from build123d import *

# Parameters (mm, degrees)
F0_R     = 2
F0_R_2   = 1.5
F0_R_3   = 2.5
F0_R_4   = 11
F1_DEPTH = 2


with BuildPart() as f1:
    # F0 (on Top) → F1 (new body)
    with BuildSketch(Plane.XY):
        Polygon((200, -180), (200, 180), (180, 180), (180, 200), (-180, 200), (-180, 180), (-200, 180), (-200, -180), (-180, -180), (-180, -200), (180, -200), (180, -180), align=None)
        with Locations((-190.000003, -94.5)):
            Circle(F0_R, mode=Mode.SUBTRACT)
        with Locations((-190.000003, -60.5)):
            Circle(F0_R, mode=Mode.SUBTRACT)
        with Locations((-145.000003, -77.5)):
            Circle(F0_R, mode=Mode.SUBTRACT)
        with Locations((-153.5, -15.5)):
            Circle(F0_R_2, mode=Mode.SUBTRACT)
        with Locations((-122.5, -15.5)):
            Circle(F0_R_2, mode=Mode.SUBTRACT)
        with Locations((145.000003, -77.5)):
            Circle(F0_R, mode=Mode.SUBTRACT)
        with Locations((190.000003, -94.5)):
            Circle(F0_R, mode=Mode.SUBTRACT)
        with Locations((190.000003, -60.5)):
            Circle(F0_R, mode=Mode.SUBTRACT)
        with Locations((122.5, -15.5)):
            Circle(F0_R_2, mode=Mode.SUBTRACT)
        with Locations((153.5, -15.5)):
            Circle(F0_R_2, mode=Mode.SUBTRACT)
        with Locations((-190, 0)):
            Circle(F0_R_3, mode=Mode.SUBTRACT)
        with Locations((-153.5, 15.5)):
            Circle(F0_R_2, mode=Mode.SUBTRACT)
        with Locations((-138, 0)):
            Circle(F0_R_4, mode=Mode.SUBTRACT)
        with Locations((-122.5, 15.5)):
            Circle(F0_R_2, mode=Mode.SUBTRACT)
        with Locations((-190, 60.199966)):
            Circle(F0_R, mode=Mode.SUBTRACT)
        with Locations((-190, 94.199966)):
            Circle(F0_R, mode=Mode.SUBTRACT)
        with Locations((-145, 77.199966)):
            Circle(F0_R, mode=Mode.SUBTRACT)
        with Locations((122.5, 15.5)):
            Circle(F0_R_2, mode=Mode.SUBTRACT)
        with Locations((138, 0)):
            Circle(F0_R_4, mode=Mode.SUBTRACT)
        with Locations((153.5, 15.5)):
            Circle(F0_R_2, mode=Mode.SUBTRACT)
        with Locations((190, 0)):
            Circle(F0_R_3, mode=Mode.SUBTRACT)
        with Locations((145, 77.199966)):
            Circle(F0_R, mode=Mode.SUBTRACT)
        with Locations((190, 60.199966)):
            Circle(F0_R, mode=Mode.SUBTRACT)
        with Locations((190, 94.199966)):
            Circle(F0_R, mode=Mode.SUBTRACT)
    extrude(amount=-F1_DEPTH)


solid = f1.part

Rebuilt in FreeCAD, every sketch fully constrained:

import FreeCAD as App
import Part
import Sketcher

V = App.Vector

doc = App.newDocument("Part")
body = doc.addObject("PartDesign::Body", "Body")

sketch1 = body.newObject("Sketcher::SketchObject", "Sketch")
sketch1.AttachmentSupport = (doc.getObject("XY_Plane"), [""])
sketch1.MapMode = "FlatFace"
sketch1.addGeometry([
    Part.LineSegment(V(200, -180, 0), V(200, 180, 0)),
    Part.LineSegment(V(200, 180, 0), V(180, 180, 0)),
    Part.LineSegment(V(180, 180, 0), V(180, 200, 0)),
    Part.LineSegment(V(180, 200, 0), V(-180, 200, 0)),
    Part.LineSegment(V(-180, 200, 0), V(-180, 180, 0)),
    Part.LineSegment(V(-180, 180, 0), V(-200, 180, 0)),
    Part.LineSegment(V(-200, 180, 0), V(-200, -180, 0)),
    Part.LineSegment(V(-200, -180, 0), V(-180, -180, 0)),
    Part.LineSegment(V(-180, -180, 0), V(-180, -200, 0)),
    Part.LineSegment(V(-180, -200, 0), V(180, -200, 0)),
    Part.LineSegment(V(180, -200, 0), V(180, -180, 0)),
    Part.LineSegment(V(180, -180, 0), V(200, -180, 0)),
    Part.Circle(V(-190.000003, -94.5, 0), V(0, 0, 1), 2),
    Part.Circle(V(-145.000003, -77.5, 0), V(0, 0, 1), 2),
    Part.Circle(V(-190.000003, -60.5, 0), V(0, 0, 1), 2),
    Part.Circle(V(-153.5, -15.5, 0), V(0, 0, 1), 1.5),
    Part.Circle(V(-122.5, -15.5, 0), V(0, 0, 1), 1.5),
    Part.Circle(V(190.000003, -94.5, 0), V(0, 0, 1), 2),
    Part.Circle(V(145.000003, -77.5, 0), V(0, 0, 1), 2),
    Part.Circle(V(190.000003, -60.5, 0), V(0, 0, 1), 2),
    Part.Circle(V(122.5, -15.5, 0), V(0, 0, 1), 1.5),
    Part.Circle(V(153.5, -15.5, 0), V(0, 0, 1), 1.5),
    Part.Circle(V(-190, 0, 0), V(0, 0, 1), 2.5),
    Part.Circle(V(-153.5, 15.5, 0), V(0, 0, 1), 1.5),
    Part.Circle(V(-138, 0, 0), V(0, 0, 1), 11),
    Part.Circle(V(-122.5, 15.5, 0), V(0, 0, 1), 1.5),
    Part.Circle(V(-190, 60.199966, 0), V(0, 0, 1), 2),
    Part.Circle(V(-145, 77.199966, 0), V(0, 0, 1), 2),
    Part.Circle(V(-190, 94.199966, 0), V(0, 0, 1), 2),
    Part.Circle(V(138, 0, 0), V(0, 0, 1), 11),
    Part.Circle(V(122.5, 15.5, 0), V(0, 0, 1), 1.5),
    Part.Circle(V(190, 0, 0), V(0, 0, 1), 2.5),
    Part.Circle(V(153.5, 15.5, 0), V(0, 0, 1), 1.5),
    Part.Circle(V(190, 60.199966, 0), V(0, 0, 1), 2),
    Part.Circle(V(145, 77.199966, 0), V(0, 0, 1), 2),
    Part.Circle(V(190, 94.199966, 0), V(0, 0, 1), 2),
], False)
sketch1.addConstraint([
    Sketcher.Constraint("Coincident", 0, 2, 1, 1),
    Sketcher.Constraint("Coincident", 1, 2, 2, 1),
    Sketcher.Constraint("Coincident", 2, 2, 3, 1),
    Sketcher.Constraint("Coincident", 3, 2, 4, 1),
    Sketcher.Constraint("Coincident", 4, 2, 5, 1),
    Sketcher.Constraint("Coincident", 5, 2, 6, 1),
    Sketcher.Constraint("Coincident", 6, 2, 7, 1),
    Sketcher.Constraint("Coincident", 7, 2, 8, 1),
    Sketcher.Constraint("Coincident", 8, 2, 9, 1),
    Sketcher.Constraint("Coincident", 9, 2, 10, 1),
    Sketcher.Constraint("Coincident", 10, 2, 11, 1),
    Sketcher.Constraint("Coincident", 11, 2, 0, 1),
    Sketcher.Constraint("Vertical", 0),
    Sketcher.Constraint("Horizontal", 1),
    Sketcher.Constraint("Vertical", 2),
    Sketcher.Constraint("Horizontal", 3),
    Sketcher.Constraint("Vertical", 4),
    Sketcher.Constraint("Horizontal", 5),
    Sketcher.Constraint("Vertical", 6),
    Sketcher.Constraint("Horizontal", 7),
    Sketcher.Constraint("Vertical", 8),
    Sketcher.Constraint("Horizontal", 9),
    Sketcher.Constraint("Vertical", 10),
    Sketcher.Constraint("Horizontal", 11),
    Sketcher.Constraint("Equal", 12, 13),
    Sketcher.Constraint("Equal", 13, 14),
    Sketcher.Constraint("Equal", 15, 16),
    Sketcher.Constraint("Equal", 14, 17),
    Sketcher.Constraint("Equal", 17, 18),
    Sketcher.Constraint("Equal", 18, 19),
    Sketcher.Constraint("Equal", 16, 20),
    Sketcher.Constraint("Equal", 20, 21),
    Sketcher.Constraint("Equal", 21, 23),
    Sketcher.Constraint("Equal", 23, 25),
    Sketcher.Constraint("Equal", 19, 26),
    Sketcher.Constraint("Equal", 26, 27),
    Sketcher.Constraint("Equal", 27, 28),
    Sketcher.Constraint("Equal", 24, 29),
    Sketcher.Constraint("Equal", 25, 30),
    Sketcher.Constraint("Equal", 22, 31),
    Sketcher.Constraint("Equal", 30, 32),
    Sketcher.Constraint("Equal", 28, 33),
    Sketcher.Constraint("Equal", 33, 34),
    Sketcher.Constraint("Equal", 34, 35),
    Sketcher.Constraint("Symmetric", 21, 3, 23, 3, -1, 1),
    Sketcher.Constraint("Symmetric", 20, 3, 25, 3, -1, 1),
    Sketcher.Constraint("Symmetric", 24, 3, 29, 3, -1, 1),
    Sketcher.Constraint("Symmetric", 16, 3, 30, 3, -1, 1),
    Sketcher.Constraint("Symmetric", 22, 3, 31, 3, -1, 1),
    Sketcher.Constraint("Symmetric", 15, 3, 32, 3, -1, 1),
    Sketcher.Constraint("Symmetric", 0, 2, 6, 2, -1, 1),
    Sketcher.Constraint("Symmetric", 2, 2, 8, 2, -1, 1),
    Sketcher.Constraint("Symmetric", 4, 2, 10, 2, -1, 1),
    Sketcher.Constraint("Symmetric", 12, 3, 17, 3, -2),
    Sketcher.Constraint("Symmetric", 13, 3, 18, 3, -2),
    Sketcher.Constraint("Symmetric", 14, 3, 19, 3, -2),
    Sketcher.Constraint("Symmetric", 16, 3, 20, 3, -2),
    Sketcher.Constraint("Symmetric", 15, 3, 21, 3, -2),
    Sketcher.Constraint("Symmetric", 26, 3, 33, 3, -2),
    Sketcher.Constraint("Symmetric", 27, 3, 34, 3, -2),
    Sketcher.Constraint("Symmetric", 28, 3, 35, 3, -2),
    Sketcher.Constraint("Symmetric", 1, 2, 4, 2, -2),
    Sketcher.Constraint("PointOnObject", 22, 3, -1),
    Sketcher.Constraint("PointOnObject", 24, 3, -1),
    Sketcher.Constraint("Horizontal", 15, 3, 16, 3),
    Sketcher.Constraint("Vertical", 12, 3, 14, 3),
    Sketcher.Constraint("Vertical", 22, 3, 26, 3),
    Sketcher.Constraint("Vertical", 26, 3, 28, 3),
    Sketcher.Constraint("Equal", 9, 0),
    Sketcher.Constraint("Equal", 11, 2),
    Sketcher.Constraint("Diameter", 12, 4.0),
    Sketcher.Constraint("Diameter", 15, 3.0),
    Sketcher.Constraint("Diameter", 22, 5.0),
    Sketcher.Constraint("Diameter", 24, 22.0),
    Sketcher.Constraint("DistanceX", 1, 2, 1, 1, 20.0),
    Sketcher.Constraint("DistanceX", 3, 2, 3, 1, 360.0),
    Sketcher.Constraint("DistanceX", 22, 3, -1, 1, 190.0),
    Sketcher.Constraint("DistanceX", 24, 3, -1, 1, 138.0),
    Sketcher.Constraint("DistanceX", 27, 3, -1, 1, 145.0),
    Sketcher.Constraint("DistanceX", 12, 3, 13, 3, 45.0),
    Sketcher.Constraint("DistanceY", 12, 3, 13, 3, 17.0),
    Sketcher.Constraint("DistanceY", 12, 3, 14, 3, 34.0),
    Sketcher.Constraint("DistanceY", 14, 3, 15, 3, 45.0),
    Sketcher.Constraint("DistanceX", 15, 3, 16, 3, 31.0),
    Sketcher.Constraint("DistanceX", 16, 3, 20, 3, 245.0),
    Sketcher.Constraint("DistanceY", 15, 3, 23, 3, 31.0),
    Sketcher.Constraint("DistanceY", 26, 3, 27, 3, 17.0),
    Sketcher.Constraint("DistanceY", 26, 3, 28, 3, 34.0),
    Sketcher.Constraint("DistanceX", 12, 3, -1, 1, 190.000003),
    Sketcher.Constraint("DistanceY", -1, 1, 26, 3, 60.199966),
])
pad1 = body.newObject("PartDesign::Pad", "Pad")
pad1.Profile = sketch1
pad1.Length = 2
pad1.Reversed = True

doc.recompute()
